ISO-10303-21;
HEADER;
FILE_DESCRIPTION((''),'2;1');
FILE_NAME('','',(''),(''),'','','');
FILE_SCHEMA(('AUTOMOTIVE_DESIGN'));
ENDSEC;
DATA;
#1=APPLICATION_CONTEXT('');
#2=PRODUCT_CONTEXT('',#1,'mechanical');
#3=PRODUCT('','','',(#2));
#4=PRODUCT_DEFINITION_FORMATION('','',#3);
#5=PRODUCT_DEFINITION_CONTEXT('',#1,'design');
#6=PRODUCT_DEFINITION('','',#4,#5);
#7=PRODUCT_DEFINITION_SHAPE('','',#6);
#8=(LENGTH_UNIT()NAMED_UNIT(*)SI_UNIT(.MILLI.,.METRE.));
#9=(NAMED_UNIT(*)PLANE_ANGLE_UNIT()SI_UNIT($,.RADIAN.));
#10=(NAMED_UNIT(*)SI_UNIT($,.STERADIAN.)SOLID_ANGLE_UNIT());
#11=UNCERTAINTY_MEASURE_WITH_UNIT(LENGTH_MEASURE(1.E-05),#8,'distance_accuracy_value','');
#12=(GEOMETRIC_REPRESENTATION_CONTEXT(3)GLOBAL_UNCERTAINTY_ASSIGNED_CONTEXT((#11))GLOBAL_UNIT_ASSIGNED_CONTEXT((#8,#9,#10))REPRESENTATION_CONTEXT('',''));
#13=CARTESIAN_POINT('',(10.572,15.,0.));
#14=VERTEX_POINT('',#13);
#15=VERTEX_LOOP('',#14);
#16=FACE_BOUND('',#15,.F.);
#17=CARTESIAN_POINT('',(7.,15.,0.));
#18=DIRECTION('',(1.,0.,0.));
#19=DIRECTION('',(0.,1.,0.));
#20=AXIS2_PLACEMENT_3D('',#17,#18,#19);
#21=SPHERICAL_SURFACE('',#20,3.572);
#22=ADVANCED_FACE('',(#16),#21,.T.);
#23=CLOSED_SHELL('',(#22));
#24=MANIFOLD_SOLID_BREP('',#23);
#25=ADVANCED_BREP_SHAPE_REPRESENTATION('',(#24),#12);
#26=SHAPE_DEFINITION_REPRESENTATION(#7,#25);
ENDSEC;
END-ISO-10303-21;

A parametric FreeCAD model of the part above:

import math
import FreeCAD as App
import Part
import Sketcher
from FreeCAD import Vector
Q = App.Units.Quantity

doc = App.newDocument("Part")
body = doc.addObject("PartDesign::Body", "Body")

sketch1 = body.newObject("Sketcher::SketchObject", "Sketch")
sketch1.AttachmentSupport = (doc.getObject("XY_Plane"), [""])
sketch1.MapMode = "FlatFace"
sketch1.addGeometry(Part.LineSegment(Vector(3.428, 15, 0), Vector(10.572, 15, 0)), False)
sketch1.addGeometry(Part.ArcOfCircle(Part.Circle(Vector(7, 15, 0), Vector(0, 0, 1), 3.572), math.radians(0), math.radians(180)), False)
sketch1.addGeometry(Part.LineSegment(Vector(10.572, 15, 0), Vector(3.428, 15, 0)), True)
sketch1.addConstraint(Sketcher.Constraint("Coincident", 0, 1, 1, 2))
sketch1.addConstraint(Sketcher.Constraint("Coincident", 1, 1, 0, 2))
sketch1.addConstraint(Sketcher.Constraint("Horizontal", 0))
sketch1.addConstraint(Sketcher.Constraint("Horizontal", 2))
sketch1.addConstraint(Sketcher.Constraint("Coincident", 2, 1, 1, 1))
sketch1.addConstraint(Sketcher.Constraint("Horizontal", 1, 3, 0, 1))
sketch1.addConstraint(Sketcher.Constraint("Equal", 0, 2))
sketch1.addConstraint(Sketcher.Constraint("DistanceX", -1, 1, 1, 3, Q("7 mm")))
sketch1.addConstraint(Sketcher.Constraint("DistanceY", -1, 1, 1, 3, Q("15 mm")))
sketch1.addConstraint(Sketcher.Constraint("Radius", 1, Q("3.572 mm")))
revolution = body.newObject("PartDesign::Revolution", "Revolution")
revolution.Profile = sketch1
revolution.ReferenceAxis = (sketch1, ["Axis0"])
revolution.Angle = 360

doc.recompute()
